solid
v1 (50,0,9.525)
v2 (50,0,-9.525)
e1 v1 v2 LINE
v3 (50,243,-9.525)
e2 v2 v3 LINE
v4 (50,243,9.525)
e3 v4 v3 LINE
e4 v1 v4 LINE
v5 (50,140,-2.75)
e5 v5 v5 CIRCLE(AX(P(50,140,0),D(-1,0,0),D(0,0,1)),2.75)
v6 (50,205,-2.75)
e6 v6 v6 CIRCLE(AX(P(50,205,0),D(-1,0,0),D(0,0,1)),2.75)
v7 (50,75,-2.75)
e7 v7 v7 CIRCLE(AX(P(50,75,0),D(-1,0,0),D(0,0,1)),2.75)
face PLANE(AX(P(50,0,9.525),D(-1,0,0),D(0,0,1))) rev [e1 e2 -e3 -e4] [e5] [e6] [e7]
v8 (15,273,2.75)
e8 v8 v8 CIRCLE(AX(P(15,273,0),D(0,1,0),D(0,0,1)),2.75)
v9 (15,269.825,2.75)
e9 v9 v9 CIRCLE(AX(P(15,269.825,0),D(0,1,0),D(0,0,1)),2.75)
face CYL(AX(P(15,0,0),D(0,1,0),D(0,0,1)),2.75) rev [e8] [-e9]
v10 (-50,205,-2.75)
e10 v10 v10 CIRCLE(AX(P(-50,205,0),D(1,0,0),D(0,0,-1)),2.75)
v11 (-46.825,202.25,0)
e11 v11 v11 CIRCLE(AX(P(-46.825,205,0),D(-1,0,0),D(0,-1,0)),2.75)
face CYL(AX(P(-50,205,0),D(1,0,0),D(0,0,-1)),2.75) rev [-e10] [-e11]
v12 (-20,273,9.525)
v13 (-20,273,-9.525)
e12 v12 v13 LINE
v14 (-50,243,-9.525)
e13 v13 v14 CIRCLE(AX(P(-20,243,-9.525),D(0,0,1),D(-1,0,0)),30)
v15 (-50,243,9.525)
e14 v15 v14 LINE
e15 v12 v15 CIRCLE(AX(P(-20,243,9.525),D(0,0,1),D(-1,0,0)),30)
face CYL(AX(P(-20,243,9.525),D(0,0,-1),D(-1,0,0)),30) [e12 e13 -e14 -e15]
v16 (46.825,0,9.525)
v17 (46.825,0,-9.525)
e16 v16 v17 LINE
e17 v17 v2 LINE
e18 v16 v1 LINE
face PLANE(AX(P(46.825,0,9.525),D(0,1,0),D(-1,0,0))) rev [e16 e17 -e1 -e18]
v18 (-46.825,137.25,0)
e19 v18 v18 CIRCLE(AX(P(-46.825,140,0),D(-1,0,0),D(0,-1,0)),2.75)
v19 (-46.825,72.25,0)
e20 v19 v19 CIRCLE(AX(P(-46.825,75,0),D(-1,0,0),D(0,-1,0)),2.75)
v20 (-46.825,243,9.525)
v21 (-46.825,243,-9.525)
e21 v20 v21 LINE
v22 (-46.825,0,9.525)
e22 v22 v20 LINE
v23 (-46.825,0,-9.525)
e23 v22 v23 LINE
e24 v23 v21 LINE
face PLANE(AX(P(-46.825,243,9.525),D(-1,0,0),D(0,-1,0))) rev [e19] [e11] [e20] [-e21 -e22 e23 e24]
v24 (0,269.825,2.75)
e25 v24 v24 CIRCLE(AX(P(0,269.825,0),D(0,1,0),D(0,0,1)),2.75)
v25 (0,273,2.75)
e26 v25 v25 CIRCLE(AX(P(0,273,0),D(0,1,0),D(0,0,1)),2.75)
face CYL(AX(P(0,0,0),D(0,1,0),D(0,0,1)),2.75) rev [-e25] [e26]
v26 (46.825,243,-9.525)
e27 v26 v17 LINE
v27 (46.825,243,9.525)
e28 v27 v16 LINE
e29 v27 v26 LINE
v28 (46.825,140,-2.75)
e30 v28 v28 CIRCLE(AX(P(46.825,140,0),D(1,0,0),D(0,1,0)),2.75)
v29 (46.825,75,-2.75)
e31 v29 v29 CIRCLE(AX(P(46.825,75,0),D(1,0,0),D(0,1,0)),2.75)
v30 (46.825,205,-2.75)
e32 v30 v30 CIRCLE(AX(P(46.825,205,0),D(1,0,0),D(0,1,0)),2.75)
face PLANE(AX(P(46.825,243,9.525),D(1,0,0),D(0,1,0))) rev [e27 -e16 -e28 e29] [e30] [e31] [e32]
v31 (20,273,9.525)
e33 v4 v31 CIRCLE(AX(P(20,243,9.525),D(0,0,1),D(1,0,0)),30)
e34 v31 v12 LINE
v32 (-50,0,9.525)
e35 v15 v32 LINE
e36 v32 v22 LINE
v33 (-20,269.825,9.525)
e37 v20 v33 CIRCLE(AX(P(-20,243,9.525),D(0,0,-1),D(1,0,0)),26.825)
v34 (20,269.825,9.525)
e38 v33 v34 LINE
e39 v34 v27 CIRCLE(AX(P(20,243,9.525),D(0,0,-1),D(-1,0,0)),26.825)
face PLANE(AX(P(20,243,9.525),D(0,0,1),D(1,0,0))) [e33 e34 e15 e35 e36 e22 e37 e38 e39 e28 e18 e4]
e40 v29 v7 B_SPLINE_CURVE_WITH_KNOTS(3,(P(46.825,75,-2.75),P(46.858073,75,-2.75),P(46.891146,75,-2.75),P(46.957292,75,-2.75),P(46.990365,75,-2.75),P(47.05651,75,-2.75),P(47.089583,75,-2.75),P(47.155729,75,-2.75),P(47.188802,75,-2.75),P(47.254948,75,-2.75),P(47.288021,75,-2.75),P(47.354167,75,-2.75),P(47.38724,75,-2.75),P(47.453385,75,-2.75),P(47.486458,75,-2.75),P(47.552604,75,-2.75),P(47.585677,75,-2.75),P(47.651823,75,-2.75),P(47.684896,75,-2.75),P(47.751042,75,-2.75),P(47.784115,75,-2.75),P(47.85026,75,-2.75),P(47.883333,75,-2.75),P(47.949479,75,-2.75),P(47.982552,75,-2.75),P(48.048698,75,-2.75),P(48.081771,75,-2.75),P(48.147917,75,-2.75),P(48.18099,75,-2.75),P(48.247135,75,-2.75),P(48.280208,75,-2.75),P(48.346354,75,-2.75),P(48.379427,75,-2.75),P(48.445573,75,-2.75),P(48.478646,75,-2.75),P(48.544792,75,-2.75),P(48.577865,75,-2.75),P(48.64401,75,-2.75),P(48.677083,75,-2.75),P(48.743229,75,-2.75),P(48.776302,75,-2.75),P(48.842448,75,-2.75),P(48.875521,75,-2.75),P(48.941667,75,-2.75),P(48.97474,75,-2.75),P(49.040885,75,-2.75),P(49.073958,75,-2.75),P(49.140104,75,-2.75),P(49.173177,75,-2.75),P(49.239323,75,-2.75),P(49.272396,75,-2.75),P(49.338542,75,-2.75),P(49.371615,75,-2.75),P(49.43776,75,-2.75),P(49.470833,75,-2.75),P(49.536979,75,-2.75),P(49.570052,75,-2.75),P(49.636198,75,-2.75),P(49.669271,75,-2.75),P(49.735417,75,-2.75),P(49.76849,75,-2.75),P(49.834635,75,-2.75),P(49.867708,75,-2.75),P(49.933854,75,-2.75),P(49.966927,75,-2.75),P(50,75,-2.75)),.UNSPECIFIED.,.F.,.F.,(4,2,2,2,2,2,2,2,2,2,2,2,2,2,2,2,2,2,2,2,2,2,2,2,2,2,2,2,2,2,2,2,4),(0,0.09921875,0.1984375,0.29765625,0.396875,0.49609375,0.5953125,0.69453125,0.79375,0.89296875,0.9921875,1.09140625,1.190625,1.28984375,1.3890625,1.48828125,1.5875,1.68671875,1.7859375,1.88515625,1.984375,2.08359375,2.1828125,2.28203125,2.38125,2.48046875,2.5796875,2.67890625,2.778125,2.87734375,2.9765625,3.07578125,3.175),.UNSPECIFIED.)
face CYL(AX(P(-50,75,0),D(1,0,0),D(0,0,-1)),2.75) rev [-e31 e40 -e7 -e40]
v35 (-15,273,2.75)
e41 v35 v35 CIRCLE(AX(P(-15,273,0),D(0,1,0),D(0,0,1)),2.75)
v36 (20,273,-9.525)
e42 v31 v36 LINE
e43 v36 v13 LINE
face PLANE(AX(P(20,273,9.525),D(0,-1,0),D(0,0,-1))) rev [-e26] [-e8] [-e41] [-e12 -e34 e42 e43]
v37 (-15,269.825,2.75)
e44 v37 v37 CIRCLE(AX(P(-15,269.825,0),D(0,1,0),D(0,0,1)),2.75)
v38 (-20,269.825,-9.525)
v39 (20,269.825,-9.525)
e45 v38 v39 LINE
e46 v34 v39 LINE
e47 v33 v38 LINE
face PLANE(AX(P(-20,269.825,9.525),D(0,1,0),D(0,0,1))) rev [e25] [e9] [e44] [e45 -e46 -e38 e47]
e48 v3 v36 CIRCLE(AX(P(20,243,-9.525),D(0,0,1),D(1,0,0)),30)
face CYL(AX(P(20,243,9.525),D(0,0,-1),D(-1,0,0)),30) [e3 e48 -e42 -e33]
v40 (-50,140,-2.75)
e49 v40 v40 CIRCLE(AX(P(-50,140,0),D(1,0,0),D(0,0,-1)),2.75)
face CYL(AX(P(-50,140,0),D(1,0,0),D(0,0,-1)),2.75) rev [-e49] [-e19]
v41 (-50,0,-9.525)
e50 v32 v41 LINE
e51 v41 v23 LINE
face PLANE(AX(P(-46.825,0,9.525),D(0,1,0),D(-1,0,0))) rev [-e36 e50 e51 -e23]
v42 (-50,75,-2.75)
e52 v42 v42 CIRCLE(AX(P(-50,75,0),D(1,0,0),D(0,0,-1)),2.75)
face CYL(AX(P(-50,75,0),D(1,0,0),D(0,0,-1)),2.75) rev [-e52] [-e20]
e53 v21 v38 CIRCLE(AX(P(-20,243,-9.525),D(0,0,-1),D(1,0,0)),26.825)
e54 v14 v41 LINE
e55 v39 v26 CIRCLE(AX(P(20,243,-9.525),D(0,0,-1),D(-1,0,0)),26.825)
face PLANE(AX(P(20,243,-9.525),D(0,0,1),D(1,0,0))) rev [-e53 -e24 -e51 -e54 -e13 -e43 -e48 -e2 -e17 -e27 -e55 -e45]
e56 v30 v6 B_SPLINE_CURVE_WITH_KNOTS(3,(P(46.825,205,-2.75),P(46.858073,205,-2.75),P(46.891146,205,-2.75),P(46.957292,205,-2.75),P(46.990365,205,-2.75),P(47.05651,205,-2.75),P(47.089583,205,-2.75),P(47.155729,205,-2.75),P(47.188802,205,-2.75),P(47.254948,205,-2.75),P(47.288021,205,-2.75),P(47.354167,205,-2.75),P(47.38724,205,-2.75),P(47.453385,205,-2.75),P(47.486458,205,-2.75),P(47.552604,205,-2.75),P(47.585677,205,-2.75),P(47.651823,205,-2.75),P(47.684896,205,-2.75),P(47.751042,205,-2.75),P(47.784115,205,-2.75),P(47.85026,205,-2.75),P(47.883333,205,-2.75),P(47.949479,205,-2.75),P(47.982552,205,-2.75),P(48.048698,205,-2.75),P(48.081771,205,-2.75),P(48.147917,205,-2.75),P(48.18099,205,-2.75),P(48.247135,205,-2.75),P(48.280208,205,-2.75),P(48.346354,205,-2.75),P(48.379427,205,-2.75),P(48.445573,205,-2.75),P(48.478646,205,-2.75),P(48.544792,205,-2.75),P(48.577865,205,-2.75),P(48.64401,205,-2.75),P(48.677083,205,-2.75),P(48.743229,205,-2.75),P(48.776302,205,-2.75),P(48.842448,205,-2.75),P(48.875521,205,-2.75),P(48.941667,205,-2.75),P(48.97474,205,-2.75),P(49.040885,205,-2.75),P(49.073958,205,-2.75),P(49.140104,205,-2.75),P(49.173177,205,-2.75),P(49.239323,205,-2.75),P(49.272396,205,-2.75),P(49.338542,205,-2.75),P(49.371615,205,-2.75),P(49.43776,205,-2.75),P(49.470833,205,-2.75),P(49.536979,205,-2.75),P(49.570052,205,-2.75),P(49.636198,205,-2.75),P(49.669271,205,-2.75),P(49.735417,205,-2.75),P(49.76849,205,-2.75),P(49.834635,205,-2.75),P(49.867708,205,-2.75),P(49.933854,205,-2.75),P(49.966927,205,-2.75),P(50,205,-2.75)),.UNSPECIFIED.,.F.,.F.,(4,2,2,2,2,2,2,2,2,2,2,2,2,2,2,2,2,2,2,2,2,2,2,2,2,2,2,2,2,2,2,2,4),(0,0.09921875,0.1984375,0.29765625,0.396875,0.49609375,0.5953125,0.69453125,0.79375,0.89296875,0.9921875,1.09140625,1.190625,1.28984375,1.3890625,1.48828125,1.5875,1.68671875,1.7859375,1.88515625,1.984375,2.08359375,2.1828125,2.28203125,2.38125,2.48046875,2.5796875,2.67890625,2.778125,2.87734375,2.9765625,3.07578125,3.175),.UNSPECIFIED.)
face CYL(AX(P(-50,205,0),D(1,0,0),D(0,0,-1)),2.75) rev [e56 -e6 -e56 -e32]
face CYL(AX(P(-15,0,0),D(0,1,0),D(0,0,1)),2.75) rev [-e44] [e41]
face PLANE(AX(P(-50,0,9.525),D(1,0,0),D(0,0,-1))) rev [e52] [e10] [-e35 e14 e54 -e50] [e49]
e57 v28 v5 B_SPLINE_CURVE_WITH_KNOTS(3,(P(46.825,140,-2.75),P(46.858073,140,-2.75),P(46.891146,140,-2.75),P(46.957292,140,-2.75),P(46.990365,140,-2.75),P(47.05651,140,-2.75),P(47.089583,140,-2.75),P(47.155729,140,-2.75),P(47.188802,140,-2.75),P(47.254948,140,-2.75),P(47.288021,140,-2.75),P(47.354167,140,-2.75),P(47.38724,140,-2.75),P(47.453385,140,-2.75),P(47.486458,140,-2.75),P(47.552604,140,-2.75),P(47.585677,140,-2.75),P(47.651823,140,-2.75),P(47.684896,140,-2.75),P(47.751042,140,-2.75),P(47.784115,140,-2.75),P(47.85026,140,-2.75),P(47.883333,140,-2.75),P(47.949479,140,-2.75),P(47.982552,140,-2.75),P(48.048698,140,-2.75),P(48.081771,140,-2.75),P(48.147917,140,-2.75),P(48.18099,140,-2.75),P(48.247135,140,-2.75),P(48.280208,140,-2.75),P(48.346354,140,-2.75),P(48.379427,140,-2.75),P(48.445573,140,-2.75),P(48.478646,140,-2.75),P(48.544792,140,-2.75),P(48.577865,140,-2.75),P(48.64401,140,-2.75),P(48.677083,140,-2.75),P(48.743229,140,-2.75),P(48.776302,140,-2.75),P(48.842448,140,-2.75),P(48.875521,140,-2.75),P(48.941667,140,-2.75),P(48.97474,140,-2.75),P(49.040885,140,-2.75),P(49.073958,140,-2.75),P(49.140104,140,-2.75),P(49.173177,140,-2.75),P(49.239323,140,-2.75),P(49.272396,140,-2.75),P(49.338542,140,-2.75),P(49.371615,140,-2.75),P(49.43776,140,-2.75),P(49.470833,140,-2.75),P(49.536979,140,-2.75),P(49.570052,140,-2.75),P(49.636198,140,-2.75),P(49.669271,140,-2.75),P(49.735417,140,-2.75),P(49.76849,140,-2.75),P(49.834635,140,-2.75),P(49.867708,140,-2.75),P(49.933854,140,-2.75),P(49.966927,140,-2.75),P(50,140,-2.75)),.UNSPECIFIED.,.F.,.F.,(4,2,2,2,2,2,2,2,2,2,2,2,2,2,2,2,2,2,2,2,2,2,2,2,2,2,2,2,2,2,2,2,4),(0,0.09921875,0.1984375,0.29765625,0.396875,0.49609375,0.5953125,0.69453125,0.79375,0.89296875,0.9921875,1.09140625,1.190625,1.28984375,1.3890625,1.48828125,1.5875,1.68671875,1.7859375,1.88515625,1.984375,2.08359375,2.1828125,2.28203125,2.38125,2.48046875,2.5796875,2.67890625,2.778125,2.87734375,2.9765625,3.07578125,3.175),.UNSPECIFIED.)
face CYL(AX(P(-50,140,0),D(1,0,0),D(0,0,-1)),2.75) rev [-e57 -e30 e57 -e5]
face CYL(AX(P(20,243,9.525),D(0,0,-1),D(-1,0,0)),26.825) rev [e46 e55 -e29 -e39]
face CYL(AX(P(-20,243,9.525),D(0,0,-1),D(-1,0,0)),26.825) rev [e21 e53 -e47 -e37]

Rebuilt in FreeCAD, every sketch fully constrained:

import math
import FreeCAD as App
import Part
import Sketcher

V = App.Vector
Q = App.Units.Quantity

doc = App.newDocument("Part")
body = doc.addObject("PartDesign::Body", "Body")

# Sketch on XY plane
sketch1 = body.newObject("Sketcher::SketchObject", "Sketch")
sketch1.AttachmentSupport = (doc.getObject("XY_Plane"), [""])
sketch1.MapMode = "FlatFace"
sketch1.addGeometry([
    Part.LineSegment(V(50, 0, 0), V(50, 243, 0)),  # 0
    Part.ArcOfCircle(Part.Circle(V(20, 243, 0), V(0, 0, 1), 30), math.radians(0), math.radians(90)),  # 1
    Part.LineSegment(V(20, 273, 0), V(-20, 273, 0)),  # 2
    Part.ArcOfCircle(Part.Circle(V(-20, 243, 0), V(0, 0, 1), 30), math.radians(90), math.radians(180)),  # 3
    Part.LineSegment(V(-50, 243, 0), V(-50, 0, 0)),  # 4
    Part.LineSegment(V(-50, 0, 0), V(-46.8, 0, 0)),  # 5
    Part.LineSegment(V(-46.8, 0, 0), V(-46.8, 243, 0)),  # 6
    Part.ArcOfCircle(Part.Circle(V(-20, 243, 0), V(0, 0, 1), 26.8), math.radians(90), math.radians(180)),  # 7
    Part.LineSegment(V(-20, 269.8, 0), V(20, 269.8, 0)),  # 8
    Part.ArcOfCircle(Part.Circle(V(20, 243, 0), V(0, 0, 1), 26.8), math.radians(0), math.radians(90)),  # 9
    Part.LineSegment(V(46.8, 243, 0), V(46.8, 0, 0)),  # 10
    Part.LineSegment(V(46.8, 0, 0), V(50, 0, 0)),  # 11
], False)
sketch1.addConstraint([
    Sketcher.Constraint("Tangent", 0, 2, 1, 1),
    Sketcher.Constraint("Tangent", 1, 2, 2, 1),
    Sketcher.Constraint("Tangent", 2, 2, 3, 1),
    Sketcher.Constraint("Tangent", 3, 2, 4, 1),
    Sketcher.Constraint("Coincident", 4, 2, 5, 1),
    Sketcher.Constraint("Coincident", 5, 2, 6, 1),
    Sketcher.Constraint("Tangent", 6, 2, 7, 2),
    Sketcher.Constraint("Tangent", 7, 1, 8, 1),
    Sketcher.Constraint("Tangent", 8, 2, 9, 2),
    Sketcher.Constraint("Tangent", 9, 1, 10, 1),
    Sketcher.Constraint("Coincident", 10, 2, 11, 1),
    Sketcher.Constraint("Coincident", 11, 2, 0, 1),
    Sketcher.Constraint("Vertical", 0),
    Sketcher.Constraint("Horizontal", 2),
    Sketcher.Constraint("Vertical", 4),
    Sketcher.Constraint("Horizontal", 5),
    Sketcher.Constraint("Vertical", 6),
    Sketcher.Constraint("Horizontal", 8),
    Sketcher.Constraint("Vertical", 10),
    Sketcher.Constraint("Horizontal", 11),
    Sketcher.Constraint("Coincident", 7, 3, 3, 3),
    Sketcher.Constraint("Coincident", 9, 3, 1, 3),
    Sketcher.Constraint("Equal", 1, 3),
    Sketcher.Constraint("Symmetric", 5, 2, 10, 2, -1, 1),
    Sketcher.Constraint("PointOnObject", 4, 2, -1),
    Sketcher.Constraint("Radius", 1, Q("30 mm")),
    Sketcher.Constraint("DistanceX", 2, 2, 2, 1, Q("40 mm")),
    Sketcher.Constraint("DistanceY", 0, 1, 0, 2, Q("243 mm")),
    Sketcher.Constraint("Radius", 7, Q("26.825 mm")),
])
pad1 = body.newObject("PartDesign::Pad", "Pad")
pad1.Profile = sketch1
pad1.Length = 19.05
pad1.Midplane = True

# Sketch on XZ plane
sketch2 = body.newObject("Sketcher::SketchObject", "Sketch001")
sketch2.AttachmentSupport = (doc.getObject("XZ_Plane"), [""])
sketch2.MapMode = "FlatFace"
sketch2.AttachmentOffset = App.Placement(V(0, 0, -273), App.Rotation())
sketch2.addGeometry([
    Part.Circle(V(0, 0, 0), V(0, 0, 1), 2.8),
    Part.Circle(V(-15, 0, 0), V(0, 0, 1), 2.8),
    Part.Circle(V(15, 0, 0), V(0, 0, 1), 2.8),
], False)
sketch2.addConstraint([
    Sketcher.Constraint("Coincident", 0, 3, -1, 1),
    Sketcher.Constraint("Equal", 0, 1),
    Sketcher.Constraint("Equal", 1, 2),
    Sketcher.Constraint("Symmetric", 1, 3, 2, 3, -1, 1),
    Sketcher.Constraint("PointOnObject", 1, 3, -1),
    Sketcher.Constraint("Diameter", 0, Q("5.5 mm")),
    Sketcher.Constraint("DistanceX", 1, 3, -1, 1, Q("15 mm")),
])
pocket1 = body.newObject("PartDesign::Pocket", "Pocket")
pocket1.Profile = sketch2
pocket1.Type = "ThroughAll"
pocket1.Reversed = True

# Sketch on YZ plane
sketch3 = body.newObject("Sketcher::SketchObject", "Sketch002")
sketch3.AttachmentSupport = (doc.getObject("YZ_Plane"), [""])
sketch3.MapMode = "FlatFace"
sketch3.AttachmentOffset = App.Placement(V(0, 0, 50), App.Rotation())
sketch3.addGeometry([
    Part.Circle(V(205, 0, 0), V(0, 0, 1), 2.8),
    Part.Circle(V(140, 0, 0), V(0, 0, 1), 2.8),
    Part.Circle(V(75, 0, 0), V(0, 0, 1), 2.8),
], False)
sketch3.addConstraint([
    Sketcher.Constraint("Equal", 0, 1),
    Sketcher.Constraint("Equal", 1, 2),
    Sketcher.Constraint("PointOnObject", 0, 3, -1),
    Sketcher.Constraint("PointOnObject", 1, 3, -1),
    Sketcher.Constraint("PointOnObject", 2, 3, -1),
    Sketcher.Constraint("Diameter", 0, Q("5.5 mm")),
    Sketcher.Constraint("DistanceX", -1, 1, 0, 3, Q("205 mm")),
    Sketcher.Constraint("DistanceX", -1, 1, 1, 3, Q("140 mm")),
    Sketcher.Constraint("DistanceX", -1, 1, 2, 3, Q("75 mm")),
])
pocket2 = body.newObject("PartDesign::Pocket", "Pocket001")
pocket2.Profile = sketch3
pocket2.Type = "ThroughAll"
pocket2.Midplane = True

doc.recompute()
